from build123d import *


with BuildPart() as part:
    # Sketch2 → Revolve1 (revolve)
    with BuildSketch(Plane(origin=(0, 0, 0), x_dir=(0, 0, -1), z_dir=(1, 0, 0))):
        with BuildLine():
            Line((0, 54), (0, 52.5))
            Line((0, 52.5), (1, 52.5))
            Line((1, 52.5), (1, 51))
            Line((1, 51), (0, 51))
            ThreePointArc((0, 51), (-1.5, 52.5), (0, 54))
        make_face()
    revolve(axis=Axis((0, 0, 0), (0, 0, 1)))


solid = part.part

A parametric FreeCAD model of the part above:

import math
import FreeCAD as App
import Part
import Sketcher
from FreeCAD import Vector

doc = App.newDocument("Part")
body = doc.addObject("PartDesign::Body", "Body")

# Sketch on YZ plane
sketch1 = body.newObject("Sketcher::SketchObject", "Sketch")
sketch1.AttachmentSupport = (doc.getObject("YZ_Plane"), [""])
sketch1.MapMode = "FlatFace"
sketch1.addGeometry(Part.LineSegment(Vector(52.5, 0, 0), Vector(54, 0, 0)), False)
sketch1.addGeometry(Part.ArcOfCircle(Part.Circle(Vector(52.5, 0, 0), Vector(0, 0, 1), 1.5), math.radians(0), math.radians(180)), False)
sketch1.addGeometry(Part.LineSegment(Vector(51, 0, 0), Vector(51, -1, 0)), False)
sketch1.addGeometry(Part.LineSegment(Vector(51, -1, 0), Vector(52.5, -1, 0)), False)
sketch1.addGeometry(Part.LineSegment(Vector(52.5, -1, 0), Vector(52.5, 0, 0)), False)
sketch1.addConstraint(Sketcher.Constraint("Coincident", 0, 2, 1, 1))
sketch1.addConstraint(Sketcher.Constraint("Tangent", 1, 2, 2, 1))
sketch1.addConstraint(Sketcher.Constraint("Coincident", 2, 2, 3, 1))
sketch1.addConstraint(Sketcher.Constraint("Coincident", 3, 2, 4, 1))
sketch1.addConstraint(Sketcher.Constraint("Coincident", 4, 2, 0, 1))
sketch1.addConstraint(Sketcher.Constraint("Horizontal", 0))
sketch1.addConstraint(Sketcher.Constraint("Vertical", 2))
sketch1.addConstraint(Sketcher.Constraint("Horizontal", 3))
sketch1.addConstraint(Sketcher.Constraint("Vertical", 4))
sketch1.addConstraint(Sketcher.Constraint("Coincident", 4, 2, 1, 3))
sketch1.addConstraint(Sketcher.Constraint("PointOnObject", 1, 3, -1))
sketch1.addConstraint(Sketcher.Constraint("Radius", 1, 1.5))
sketch1.addConstraint(Sketcher.Constraint("DistanceY", 2, 2, 2, 1, 1.0))
sketch1.addConstraint(Sketcher.Constraint("DistanceX", -1, 1, 0, 2, 54.0))
revolution = body.newObject("PartDesign::Revolution", "Revolution")
revolution.Profile = sketch1
revolution.ReferenceAxis = (sketch1, ["V_Axis"])
revolution.Angle = 360

doc.recompute()
